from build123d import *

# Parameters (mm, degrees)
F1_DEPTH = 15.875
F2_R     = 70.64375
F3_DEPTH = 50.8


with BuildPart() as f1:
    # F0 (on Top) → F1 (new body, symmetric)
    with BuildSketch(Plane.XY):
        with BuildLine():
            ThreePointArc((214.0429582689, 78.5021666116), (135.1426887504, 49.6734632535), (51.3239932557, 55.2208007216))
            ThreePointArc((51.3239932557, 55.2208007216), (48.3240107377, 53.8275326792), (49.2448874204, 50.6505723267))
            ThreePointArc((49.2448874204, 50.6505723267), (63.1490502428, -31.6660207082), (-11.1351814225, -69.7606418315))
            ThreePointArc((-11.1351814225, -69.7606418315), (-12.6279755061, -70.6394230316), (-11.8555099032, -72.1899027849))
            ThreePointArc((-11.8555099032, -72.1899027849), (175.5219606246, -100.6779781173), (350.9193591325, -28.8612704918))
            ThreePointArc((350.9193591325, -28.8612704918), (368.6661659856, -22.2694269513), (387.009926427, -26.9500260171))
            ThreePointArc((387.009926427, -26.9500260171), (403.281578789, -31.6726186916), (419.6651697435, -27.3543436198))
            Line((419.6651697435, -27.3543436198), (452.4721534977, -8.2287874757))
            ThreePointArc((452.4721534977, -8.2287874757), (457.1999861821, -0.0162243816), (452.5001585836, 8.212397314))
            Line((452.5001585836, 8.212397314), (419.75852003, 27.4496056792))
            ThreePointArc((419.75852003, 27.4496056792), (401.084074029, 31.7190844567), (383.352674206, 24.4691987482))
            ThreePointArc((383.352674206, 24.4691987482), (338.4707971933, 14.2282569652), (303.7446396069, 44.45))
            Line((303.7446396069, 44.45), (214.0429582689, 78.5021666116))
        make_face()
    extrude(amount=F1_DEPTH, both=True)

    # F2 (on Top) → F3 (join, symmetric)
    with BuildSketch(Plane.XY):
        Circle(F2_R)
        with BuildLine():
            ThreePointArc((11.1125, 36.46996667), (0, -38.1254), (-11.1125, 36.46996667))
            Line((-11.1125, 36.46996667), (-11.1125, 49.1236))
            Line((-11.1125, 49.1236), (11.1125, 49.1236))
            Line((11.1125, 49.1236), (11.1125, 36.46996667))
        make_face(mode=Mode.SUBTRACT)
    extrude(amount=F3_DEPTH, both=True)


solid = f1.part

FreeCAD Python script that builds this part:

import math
import FreeCAD as App
import Part
import Sketcher
Q = App.Units.Quantity

doc = App.newDocument("Part")
body = doc.addObject("PartDesign::Body", "Body")

sketch1 = doc.addObject("Sketcher::SketchObject", "Sketch")
body.addObject(sketch1)
sketch1.AttachmentSupport = (doc.XY_Plane, [""])
sketch1.MapMode = "FlatFace"
sketch1.addGeometry(Part.ArcOfCircle(Part.Circle(App.Vector(106.3625, 250.825, 0), App.Vector(0, 0, 1), 203.2), math.radians(-105.715376), math.radians(-57.999713)), False)
sketch1.addGeometry(Part.ArcOfCircle(Part.Circle(App.Vector(50.636012, 52.775748, 0), App.Vector(0, 0, 1), 2.54), math.radians(74.284624), math.radians(236.791537)), False)
sketch1.addGeometry(Part.ArcOfCircle(Part.Circle(App.Vector(0, 0, 0), App.Vector(0, 0, 1), 70.64375), math.radians(-99.069037), math.radians(45.806188)), False)
sketch1.addGeometry(Part.ArcOfCircle(Part.Circle(App.Vector(-11.410377, -71.000467, 0), App.Vector(0, 0, 1), 1.27), math.radians(77.485354), math.radians(249.482185)), False)
sketch1.addGeometry(Part.ArcOfCircle(Part.Circle(App.Vector(133.35, 252.4125, 0), App.Vector(0, 0, 1), 355.6), math.radians(-114.100565), math.radians(-52.277526)), False)
sketch1.addGeometry(Part.ArcOfCircle(Part.Circle(App.Vector(370.345195, -53.975, 0), App.Vector(0, 0, 1), 31.75), math.radians(58.340276), math.radians(127.722474)), False)
sketch1.addGeometry(Part.ArcOfCircle(Part.Circle(App.Vector(403.674658, 0.074948, 0), App.Vector(0, 0, 1), 31.75), math.radians(-121.659724), math.radians(-59.759008)), False)
sketch1.addGeometry(Part.LineSegment(App.Vector(419.66517, -27.354344, 0), App.Vector(452.472153, -8.228787, 0)), False)
sketch1.addGeometry(Part.ArcOfCircle(Part.Circle(App.Vector(447.675, 0, 0), App.Vector(0, 0, 1), 9.525), math.radians(-59.759008), math.radians(59.563818)), False)
sketch1.addGeometry(Part.LineSegment(App.Vector(452.500159, 8.212397, 0), App.Vector(419.75852, 27.449606, 0)), False)
sketch1.addGeometry(Part.ArcOfCircle(Part.Circle(App.Vector(403.674658, 0.074948, 0), App.Vector(0, 0, 1), 31.75), math.radians(59.563818), math.radians(129.796479)), False)
sketch1.addGeometry(Part.ArcOfCircle(Part.Circle(App.Vector(350.8375, 63.5, 0), App.Vector(0, 0, 1), 50.8), math.radians(-157.975687), math.radians(-50.203521)), False)
sketch1.addGeometry(Part.LineSegment(App.Vector(303.74464, 44.45, 0), App.Vector(214.042958, 78.502167, 0)), False)
sketch1.addConstraint(Sketcher.Constraint("Tangent", 0, 1, 1, 1))
sketch1.addConstraint(Sketcher.Constraint("Coincident", 1, 2, 2, 2))
sketch1.addConstraint(Sketcher.Constraint("Coincident", 2, 1, 3, 1))
sketch1.addConstraint(Sketcher.Constraint("Coincident", 3, 2, 4, 1))
sketch1.addConstraint(Sketcher.Constraint("Tangent", 4, 2, 5, 2))
sketch1.addConstraint(Sketcher.Constraint("Tangent", 5, 1, 6, 1))
sketch1.addConstraint(Sketcher.Constraint("Tangent", 6, 2, 7, 1))
sketch1.addConstraint(Sketcher.Constraint("Tangent", 7, 2, 8, 1))
sketch1.addConstraint(Sketcher.Constraint("Tangent", 8, 2, 9, 1))
sketch1.addConstraint(Sketcher.Constraint("Tangent", 9, 2, 10, 1))
sketch1.addConstraint(Sketcher.Constraint("Tangent", 10, 2, 11, 2))
sketch1.addConstraint(Sketcher.Constraint("Coincident", 11, 1, 12, 1))
sketch1.addConstraint(Sketcher.Constraint("Coincident", 12, 2, 0, 2))
sketch1.addConstraint(Sketcher.Constraint("Coincident", 2, 3, -1, 1))
sketch1.addConstraint(Sketcher.Constraint("Coincident", 10, 3, 6, 3))
sketch1.addConstraint(Sketcher.Constraint("Equal", 5, 6))
sketch1.addConstraint(Sketcher.Constraint("Equal", 6, 10))
sketch1.addConstraint(Sketcher.Constraint("PointOnObject", 8, 3, -1))
sketch1.addConstraint(Sketcher.Constraint("Radius", 0, Q("8 in")))
sketch1.addConstraint(Sketcher.Constraint("Radius", 4, Q("14 in")))
sketch1.addConstraint(Sketcher.Constraint("Radius", 11, Q("2 in")))
sketch1.addConstraint(Sketcher.Constraint("Radius", 1, Q("0.1 in")))
sketch1.addConstraint(Sketcher.Constraint("Radius", 3, Q("0.05 in")))
sketch1.addConstraint(Sketcher.Constraint("Radius", 5, Q("1.25 in")))
sketch1.addConstraint(Sketcher.Constraint("Radius", 2, Q("2.78125 in")))
sketch1.addConstraint(Sketcher.Constraint("Radius", 8, Q("0.375 in")))
sketch1.addConstraint(Sketcher.Constraint("DistanceY", 5, 3, 0, 3, Q("12 in")))
sketch1.addConstraint(Sketcher.Constraint("DistanceY", -1, 1, 11, 3, Q("2.5 in")))
sketch1.addConstraint(Sketcher.Constraint("DistanceX", -1, 1, 4, 3, Q("5.25 in")))
sketch1.addConstraint(Sketcher.Constraint("DistanceY", -1, 1, 11, 1, Q("1.75 in")))
sketch1.addConstraint(Sketcher.Constraint("DistanceX", -1, 1, 0, 3, Q("4.1875 in")))
sketch1.addConstraint(Sketcher.Constraint("DistanceY", -1, 1, 0, 3, Q("9.875 in")))
sketch1.addConstraint(Sketcher.Constraint("DistanceY", -1, 1, 4, 3, Q("9.9375 in")))
sketch1.addConstraint(Sketcher.Constraint("DistanceX", -1, 1, 8, 3, Q("17.625 in")))
sketch1.addConstraint(Sketcher.Constraint("DistanceX", -1, 1, 11, 3, Q("13.8125 in")))
sketch1.addConstraint(Sketcher.Constraint("Distance", 12, Q("95.947599 mm")))
sketch1.addConstraint(Sketcher.Constraint("DistanceY", -1, 1, 0, 1, Q("55.220801 mm")))
sketch1.addConstraint(Sketcher.Constraint("DistanceX", 2, 1, -1, 1, Q("11.135181 mm")))
sketch1.addConstraint(Sketcher.Constraint("DistanceX", 3, 2, -1, 1, Q("11.85551 mm")))
pad1 = doc.addObject("PartDesign::Pad", "Pad")
body.addObject(pad1)
pad1.Profile = sketch1
pad1.Length = Q("1.25 in")
pad1.Midplane = True

sketch2 = doc.addObject("Sketcher::SketchObject", "Sketch001")
body.addObject(sketch2)
sketch2.AttachmentSupport = (doc.XY_Plane, [""])
sketch2.MapMode = "FlatFace"
sketch2.addGeometry(Part.Circle(App.Vector(0, 0, 0), App.Vector(0, 0, 1), 70.64375), False)
sketch2.addGeometry(Part.LineSegment(App.Vector(11.1125, 49.1236, 0), App.Vector(11.1125, 36.469967, 0)), False)
sketch2.addGeometry(Part.ArcOfCircle(Part.Circle(App.Vector(0, 0, 0), App.Vector(0, 0, 1), 38.1254), math.radians(106.946124), math.radians(433.053876)), False)
sketch2.addGeometry(Part.LineSegment(App.Vector(-11.1125, 36.469967, 0), App.Vector(-11.1125, 49.1236, 0)), False)
sketch2.addGeometry(Part.LineSegment(App.Vector(-11.1125, 49.1236, 0), App.Vector(11.1125, 49.1236, 0)), False)
sketch2.addConstraint(Sketcher.Constraint("Coincident", 1, 2, 2, 2))
sketch2.addConstraint(Sketcher.Constraint("Coincident", 2, 1, 3, 1))
sketch2.addConstraint(Sketcher.Constraint("Coincident", 3, 2, 4, 1))
sketch2.addConstraint(Sketcher.Constraint("Coincident", 4, 2, 1, 1))
sketch2.addConstraint(Sketcher.Constraint("Vertical", 1))
sketch2.addConstraint(Sketcher.Constraint("Vertical", 3))
sketch2.addConstraint(Sketcher.Constraint("Horizontal", 4))
sketch2.addConstraint(Sketcher.Constraint("Coincident", 0, 3, -1, 1))
sketch2.addConstraint(Sketcher.Constraint("Coincident", 2, 3, -1, 1))
sketch2.addConstraint(Sketcher.Constraint("Horizontal", 1, 2, 2, 1))
sketch2.addConstraint(Sketcher.Constraint("Diameter", 0, Q("5.5625 in")))
sketch2.addConstraint(Sketcher.Constraint("Radius", 2, Q("1.501 in")))
sketch2.addConstraint(Sketcher.Constraint("DistanceX", 4, 1, 4, 2, Q("0.875 in")))
sketch2.addConstraint(Sketcher.Constraint("DistanceY", -1, 1, 3, 2, Q("1.934 in")))
pad2 = doc.addObject("PartDesign::Pad", "Pad001")
body.addObject(pad2)
pad2.Profile = sketch2
pad2.Length = Q("4 in")
pad2.Midplane = True

doc.recompute()
